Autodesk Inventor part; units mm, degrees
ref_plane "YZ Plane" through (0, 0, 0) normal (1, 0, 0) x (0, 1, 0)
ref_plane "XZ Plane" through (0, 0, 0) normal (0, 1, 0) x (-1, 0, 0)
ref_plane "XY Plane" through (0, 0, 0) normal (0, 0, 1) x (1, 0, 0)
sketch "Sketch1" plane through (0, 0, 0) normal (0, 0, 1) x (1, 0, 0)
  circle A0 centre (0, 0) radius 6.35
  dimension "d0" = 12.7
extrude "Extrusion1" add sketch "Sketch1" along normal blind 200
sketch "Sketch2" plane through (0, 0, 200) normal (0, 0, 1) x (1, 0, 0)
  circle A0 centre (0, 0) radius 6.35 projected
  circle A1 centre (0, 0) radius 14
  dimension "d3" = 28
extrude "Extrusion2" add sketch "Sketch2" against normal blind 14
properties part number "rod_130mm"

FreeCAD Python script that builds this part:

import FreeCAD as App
import Part
import Sketcher

doc = App.newDocument("Part")
body = doc.addObject("PartDesign::Body", "Body")

sketch1 = body.newObject("Sketcher::SketchObject", "Sketch")
sketch1.AttachmentSupport = (doc.getObject("XY_Plane"), [""])
sketch1.MapMode = "FlatFace"
sketch1.addGeometry(Part.Circle(App.Vector(0, 0, 0), App.Vector(0, 0, 1), 6), False)
sketch1.addConstraint(Sketcher.Constraint("Coincident", 0, 3, -1, 1))
sketch1.addConstraint(Sketcher.Constraint("Diameter", 0, 12.7))
pad1 = body.newObject("PartDesign::Pad", "Pad")
pad1.Profile = sketch1
pad1.Length = 200

sketch2 = body.newObject("Sketcher::SketchObject", "Sketch001")
sketch2.AttachmentSupport = (doc.getObject("XY_Plane"), [""])
sketch2.MapMode = "FlatFace"
sketch2.AttachmentOffset = App.Placement(App.Vector(0, 0, 200), App.Rotation())
sketch2.addGeometry(Part.Circle(App.Vector(0, 0, 0), App.Vector(0, 0, 1), 14), False)
sketch2.addGeometry(Part.Circle(App.Vector(0, 0, 0), App.Vector(0, 0, 1), 6), False)
sketch2.addConstraint(Sketcher.Constraint("Coincident", 0, 3, -1, 1))
sketch2.addConstraint(Sketcher.Constraint("Coincident", 1, 3, -1, 1))
sketch2.addConstraint(Sketcher.Constraint("Diameter", 0, 28.0))
sketch2.addConstraint(Sketcher.Constraint("Diameter", 1, 12.7))
pad2 = body.newObject("PartDesign::Pad", "Pad001")
pad2.Profile = sketch2
pad2.Length = 14
pad2.Reversed = True

doc.recompute()
